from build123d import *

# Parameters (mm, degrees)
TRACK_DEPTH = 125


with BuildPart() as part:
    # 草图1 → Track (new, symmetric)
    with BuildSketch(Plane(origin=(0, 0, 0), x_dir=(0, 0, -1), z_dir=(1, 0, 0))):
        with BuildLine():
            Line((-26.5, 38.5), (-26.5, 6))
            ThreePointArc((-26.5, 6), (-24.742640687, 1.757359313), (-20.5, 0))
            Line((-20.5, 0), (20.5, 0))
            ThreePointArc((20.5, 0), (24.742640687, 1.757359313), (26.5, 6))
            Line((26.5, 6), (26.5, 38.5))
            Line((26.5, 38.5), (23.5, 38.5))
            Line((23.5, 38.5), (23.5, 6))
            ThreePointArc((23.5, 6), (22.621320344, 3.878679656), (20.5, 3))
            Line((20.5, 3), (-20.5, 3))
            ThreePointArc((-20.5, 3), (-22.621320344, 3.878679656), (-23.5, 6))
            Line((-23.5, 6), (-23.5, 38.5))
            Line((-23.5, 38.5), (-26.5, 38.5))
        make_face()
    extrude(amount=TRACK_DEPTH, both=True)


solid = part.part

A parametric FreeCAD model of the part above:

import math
import FreeCAD as App
import Part
import Sketcher
from FreeCAD import Vector
Q = App.Units.Quantity

doc = App.newDocument("Part")
body = doc.addObject("PartDesign::Body", "Body")

# Sketch on YZ plane
sketch1 = body.newObject("Sketcher::SketchObject", "Sketch")
sketch1.AttachmentSupport = (doc.getObject("YZ_Plane"), [""])
sketch1.MapMode = "FlatFace"
sketch1.addGeometry([
    Part.LineSegment(Vector(38.5, 26.5, 0), Vector(6, 26.5, 0)),  # 0
    Part.ArcOfCircle(Part.Circle(Vector(6, 20.5, 0), Vector(0, 0, 1), 6), math.radians(90), math.radians(180)),  # 1
    Part.LineSegment(Vector(0, 20.5, 0), Vector(0, -20.5, 0)),  # 2
    Part.ArcOfCircle(Part.Circle(Vector(6, -20.5, 0), Vector(0, 0, 1), 6), math.radians(180), math.radians(270)),  # 3
    Part.LineSegment(Vector(6, -26.5, 0), Vector(38.5, -26.5, 0)),  # 4
    Part.LineSegment(Vector(38.5, -26.5, 0), Vector(38.5, -23.5, 0)),  # 5
    Part.LineSegment(Vector(38.5, -23.5, 0), Vector(6, -23.5, 0)),  # 6
    Part.ArcOfCircle(Part.Circle(Vector(6, -20.5, 0), Vector(0, 0, 1), 3), math.radians(180), math.radians(270)),  # 7
    Part.LineSegment(Vector(3, -20.5, 0), Vector(3, 20.5, 0)),  # 8
    Part.ArcOfCircle(Part.Circle(Vector(6, 20.5, 0), Vector(0, 0, 1), 3), math.radians(90), math.radians(180)),  # 9
    Part.LineSegment(Vector(6, 23.5, 0), Vector(38.5, 23.5, 0)),  # 10
    Part.LineSegment(Vector(38.5, 23.5, 0), Vector(38.5, 26.5, 0)),  # 11
], False)
sketch1.addConstraint([
    Sketcher.Constraint("Tangent", 0, 2, 1, 1),
    Sketcher.Constraint("Tangent", 1, 2, 2, 1),
    Sketcher.Constraint("Tangent", 2, 2, 3, 1),
    Sketcher.Constraint("Tangent", 3, 2, 4, 1),
    Sketcher.Constraint("Coincident", 4, 2, 5, 1),
    Sketcher.Constraint("Coincident", 5, 2, 6, 1),
    Sketcher.Constraint("Tangent", 6, 2, 7, 2),
    Sketcher.Constraint("Tangent", 7, 1, 8, 1),
    Sketcher.Constraint("Tangent", 8, 2, 9, 2),
    Sketcher.Constraint("Tangent", 9, 1, 10, 1),
    Sketcher.Constraint("Coincident", 10, 2, 11, 1),
    Sketcher.Constraint("Coincident", 11, 2, 0, 1),
    Sketcher.Constraint("Horizontal", 0),
    Sketcher.Constraint("Vertical", 2),
    Sketcher.Constraint("Horizontal", 4),
    Sketcher.Constraint("Vertical", 5),
    Sketcher.Constraint("Horizontal", 6),
    Sketcher.Constraint("Vertical", 8),
    Sketcher.Constraint("Horizontal", 10),
    Sketcher.Constraint("Vertical", 11),
    Sketcher.Constraint("Coincident", 7, 3, 3, 3),
    Sketcher.Constraint("Coincident", 9, 3, 1, 3),
    Sketcher.Constraint("Equal", 1, 3),
    Sketcher.Constraint("Symmetric", 1, 2, 2, 2, -1, 1),
    Sketcher.Constraint("Vertical", 5, 2, 10, 2),
    Sketcher.Constraint("Radius", 1, Q("6 mm")),
    Sketcher.Constraint("Radius", 7, Q("3 mm")),
    Sketcher.Constraint("DistanceY", 2, 2, 2, 1, Q("41 mm")),
    Sketcher.Constraint("DistanceX", 0, 2, 0, 1, Q("32.5 mm")),
])
pad1 = body.newObject("PartDesign::Pad", "Pad")
pad1.Profile = sketch1
pad1.Length = 250
pad1.Midplane = True

doc.recompute()
